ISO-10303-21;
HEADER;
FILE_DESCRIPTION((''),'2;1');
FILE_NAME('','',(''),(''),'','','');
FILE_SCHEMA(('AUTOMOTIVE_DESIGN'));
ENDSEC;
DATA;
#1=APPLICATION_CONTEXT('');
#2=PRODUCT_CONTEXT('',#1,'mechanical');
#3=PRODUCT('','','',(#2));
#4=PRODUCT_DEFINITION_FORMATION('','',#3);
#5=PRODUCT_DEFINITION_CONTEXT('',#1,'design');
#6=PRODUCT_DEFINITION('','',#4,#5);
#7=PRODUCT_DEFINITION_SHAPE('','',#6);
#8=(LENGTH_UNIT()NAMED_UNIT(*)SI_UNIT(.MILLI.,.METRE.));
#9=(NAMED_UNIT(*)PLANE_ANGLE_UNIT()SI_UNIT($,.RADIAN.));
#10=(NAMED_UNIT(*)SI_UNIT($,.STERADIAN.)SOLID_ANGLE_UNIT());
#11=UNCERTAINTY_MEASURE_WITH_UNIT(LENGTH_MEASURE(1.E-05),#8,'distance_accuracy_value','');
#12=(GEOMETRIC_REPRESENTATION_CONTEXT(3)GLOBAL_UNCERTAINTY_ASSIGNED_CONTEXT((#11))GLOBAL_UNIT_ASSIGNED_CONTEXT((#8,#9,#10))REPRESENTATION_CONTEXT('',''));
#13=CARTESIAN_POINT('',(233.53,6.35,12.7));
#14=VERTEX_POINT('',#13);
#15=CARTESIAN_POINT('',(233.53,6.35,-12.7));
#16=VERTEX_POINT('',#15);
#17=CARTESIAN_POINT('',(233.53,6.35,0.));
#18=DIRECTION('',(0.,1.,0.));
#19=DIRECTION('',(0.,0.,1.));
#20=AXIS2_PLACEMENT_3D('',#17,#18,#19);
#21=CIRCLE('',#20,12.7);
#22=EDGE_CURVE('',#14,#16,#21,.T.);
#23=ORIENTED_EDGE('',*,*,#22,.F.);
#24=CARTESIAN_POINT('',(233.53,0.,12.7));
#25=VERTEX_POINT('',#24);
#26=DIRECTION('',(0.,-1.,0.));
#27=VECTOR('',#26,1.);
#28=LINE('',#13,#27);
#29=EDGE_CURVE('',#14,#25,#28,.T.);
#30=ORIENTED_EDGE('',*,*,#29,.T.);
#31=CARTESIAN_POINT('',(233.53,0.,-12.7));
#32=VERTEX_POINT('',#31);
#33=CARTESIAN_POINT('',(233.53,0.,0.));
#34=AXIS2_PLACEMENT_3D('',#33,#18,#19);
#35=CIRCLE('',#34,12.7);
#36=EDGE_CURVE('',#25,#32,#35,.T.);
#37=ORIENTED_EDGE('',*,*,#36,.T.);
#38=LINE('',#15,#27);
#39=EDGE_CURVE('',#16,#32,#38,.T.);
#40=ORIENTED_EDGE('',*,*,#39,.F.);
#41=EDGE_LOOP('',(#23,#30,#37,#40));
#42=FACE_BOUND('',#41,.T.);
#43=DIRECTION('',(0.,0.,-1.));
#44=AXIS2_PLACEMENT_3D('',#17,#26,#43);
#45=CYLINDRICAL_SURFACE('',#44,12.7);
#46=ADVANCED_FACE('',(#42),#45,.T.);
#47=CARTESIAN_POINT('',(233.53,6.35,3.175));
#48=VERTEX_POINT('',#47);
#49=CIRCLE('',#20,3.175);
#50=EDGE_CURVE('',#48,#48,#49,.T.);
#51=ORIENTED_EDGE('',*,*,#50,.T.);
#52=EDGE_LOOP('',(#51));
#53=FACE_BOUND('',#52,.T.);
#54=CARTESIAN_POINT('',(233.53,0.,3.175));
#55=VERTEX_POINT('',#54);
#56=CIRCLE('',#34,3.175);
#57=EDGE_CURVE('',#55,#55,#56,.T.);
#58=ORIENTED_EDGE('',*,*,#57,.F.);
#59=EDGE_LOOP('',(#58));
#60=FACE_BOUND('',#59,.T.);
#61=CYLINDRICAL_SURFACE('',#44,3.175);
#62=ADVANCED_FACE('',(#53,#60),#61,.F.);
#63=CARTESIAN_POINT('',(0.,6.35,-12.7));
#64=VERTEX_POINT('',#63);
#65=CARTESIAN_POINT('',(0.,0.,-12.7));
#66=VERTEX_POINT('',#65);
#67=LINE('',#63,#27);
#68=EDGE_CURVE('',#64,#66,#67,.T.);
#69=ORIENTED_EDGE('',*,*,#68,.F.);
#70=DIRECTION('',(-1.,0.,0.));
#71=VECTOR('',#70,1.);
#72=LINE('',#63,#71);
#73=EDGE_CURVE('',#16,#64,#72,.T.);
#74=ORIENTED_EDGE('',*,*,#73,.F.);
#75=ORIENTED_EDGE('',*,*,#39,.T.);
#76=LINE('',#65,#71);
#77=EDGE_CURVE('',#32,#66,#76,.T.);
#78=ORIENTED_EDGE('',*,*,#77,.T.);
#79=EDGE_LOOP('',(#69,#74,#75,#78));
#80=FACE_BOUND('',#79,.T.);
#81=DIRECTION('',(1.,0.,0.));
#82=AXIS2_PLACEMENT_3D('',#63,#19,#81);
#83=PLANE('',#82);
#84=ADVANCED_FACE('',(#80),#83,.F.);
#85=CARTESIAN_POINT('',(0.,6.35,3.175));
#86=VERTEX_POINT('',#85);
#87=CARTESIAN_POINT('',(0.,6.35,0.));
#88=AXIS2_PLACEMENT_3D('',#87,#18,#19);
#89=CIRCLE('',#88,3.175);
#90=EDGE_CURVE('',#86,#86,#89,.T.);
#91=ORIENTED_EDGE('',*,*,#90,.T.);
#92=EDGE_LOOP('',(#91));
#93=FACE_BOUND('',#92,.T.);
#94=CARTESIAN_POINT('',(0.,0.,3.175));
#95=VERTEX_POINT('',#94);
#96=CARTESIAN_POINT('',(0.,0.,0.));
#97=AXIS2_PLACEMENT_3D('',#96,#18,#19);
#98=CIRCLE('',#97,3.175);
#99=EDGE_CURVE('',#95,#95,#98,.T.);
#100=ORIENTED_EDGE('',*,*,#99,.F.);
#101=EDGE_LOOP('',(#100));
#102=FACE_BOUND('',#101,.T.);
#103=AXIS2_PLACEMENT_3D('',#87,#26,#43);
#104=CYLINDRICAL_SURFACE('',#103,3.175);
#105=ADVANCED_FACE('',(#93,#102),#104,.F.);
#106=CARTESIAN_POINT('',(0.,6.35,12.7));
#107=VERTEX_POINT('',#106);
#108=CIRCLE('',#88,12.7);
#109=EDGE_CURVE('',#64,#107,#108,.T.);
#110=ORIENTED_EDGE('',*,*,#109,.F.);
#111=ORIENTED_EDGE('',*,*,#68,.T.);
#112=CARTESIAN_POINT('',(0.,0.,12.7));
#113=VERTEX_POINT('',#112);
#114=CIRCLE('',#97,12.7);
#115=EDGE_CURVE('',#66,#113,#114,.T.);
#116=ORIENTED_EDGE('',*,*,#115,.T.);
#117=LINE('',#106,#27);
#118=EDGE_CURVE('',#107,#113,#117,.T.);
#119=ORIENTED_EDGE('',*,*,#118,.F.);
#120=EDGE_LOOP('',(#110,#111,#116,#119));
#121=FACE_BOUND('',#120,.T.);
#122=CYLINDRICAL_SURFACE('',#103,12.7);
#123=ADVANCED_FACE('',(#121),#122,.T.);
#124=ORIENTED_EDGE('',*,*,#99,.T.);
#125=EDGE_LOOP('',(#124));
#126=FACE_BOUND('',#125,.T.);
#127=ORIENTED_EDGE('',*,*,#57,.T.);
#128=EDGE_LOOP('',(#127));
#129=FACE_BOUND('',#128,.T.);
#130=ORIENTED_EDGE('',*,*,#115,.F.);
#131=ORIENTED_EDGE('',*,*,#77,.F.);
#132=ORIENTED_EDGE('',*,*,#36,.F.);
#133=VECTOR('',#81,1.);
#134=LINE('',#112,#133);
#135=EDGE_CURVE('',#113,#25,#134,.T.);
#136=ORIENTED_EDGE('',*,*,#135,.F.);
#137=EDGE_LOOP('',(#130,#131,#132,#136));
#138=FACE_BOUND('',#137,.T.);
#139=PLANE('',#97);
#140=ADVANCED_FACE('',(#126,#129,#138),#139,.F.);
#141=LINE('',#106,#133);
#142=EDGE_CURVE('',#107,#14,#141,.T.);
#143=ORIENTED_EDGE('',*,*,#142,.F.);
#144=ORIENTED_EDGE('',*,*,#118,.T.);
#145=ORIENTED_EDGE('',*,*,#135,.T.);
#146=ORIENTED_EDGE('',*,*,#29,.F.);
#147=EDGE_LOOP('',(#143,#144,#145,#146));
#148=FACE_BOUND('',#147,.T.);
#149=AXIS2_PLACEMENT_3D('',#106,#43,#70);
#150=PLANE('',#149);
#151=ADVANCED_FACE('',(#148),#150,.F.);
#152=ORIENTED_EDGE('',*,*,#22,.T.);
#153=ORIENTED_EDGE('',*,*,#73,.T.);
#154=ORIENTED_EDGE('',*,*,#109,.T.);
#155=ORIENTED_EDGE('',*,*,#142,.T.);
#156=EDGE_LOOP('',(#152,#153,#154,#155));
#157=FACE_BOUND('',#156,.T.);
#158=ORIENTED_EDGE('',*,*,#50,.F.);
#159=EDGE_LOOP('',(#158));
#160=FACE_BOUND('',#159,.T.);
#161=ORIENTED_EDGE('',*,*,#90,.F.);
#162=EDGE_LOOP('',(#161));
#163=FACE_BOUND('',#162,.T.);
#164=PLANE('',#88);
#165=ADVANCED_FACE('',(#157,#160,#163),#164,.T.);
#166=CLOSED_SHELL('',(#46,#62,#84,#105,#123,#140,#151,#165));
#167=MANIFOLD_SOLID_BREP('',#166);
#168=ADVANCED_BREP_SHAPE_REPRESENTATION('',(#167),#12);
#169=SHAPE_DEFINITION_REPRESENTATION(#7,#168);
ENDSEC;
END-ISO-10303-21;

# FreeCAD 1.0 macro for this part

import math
import FreeCAD as App
import Part
import Sketcher

V = App.Vector
Q = App.Units.Quantity

doc = App.newDocument("Part")
body = doc.addObject("PartDesign::Body", "Body")

sketch1 = body.newObject("Sketcher::SketchObject", "Sketch")
sketch1.AttachmentSupport = (doc.getObject("XZ_Plane"), [""])
sketch1.MapMode = "FlatFace"
sketch1.addGeometry(Part.LineSegment(V(233.5, -12.7, 0), V(0, -12.7, 0)), False)
sketch1.addGeometry(Part.ArcOfCircle(Part.Circle(V(0, 0, 0), V(0, 0, 1), 12.7), math.radians(90), math.radians(270)), False)
sketch1.addGeometry(Part.LineSegment(V(0, 12.7, 0), V(233.5, 12.7, 0)), False)
sketch1.addGeometry(Part.ArcOfCircle(Part.Circle(V(233.5, 0, 0), V(0, 0, 1), 12.7), math.radians(-90), math.radians(90)), False)
sketch1.addGeometry(Part.Circle(V(233.5, 0, 0), V(0, 0, 1), 3.2), False)
sketch1.addGeometry(Part.Circle(V(0, 0, 0), V(0, 0, 1), 3.2), False)
sketch1.addConstraint(Sketcher.Constraint("Tangent", 0, 2, 1, 2))
sketch1.addConstraint(Sketcher.Constraint("Tangent", 1, 1, 2, 1))
sketch1.addConstraint(Sketcher.Constraint("Tangent", 2, 2, 3, 2))
sketch1.addConstraint(Sketcher.Constraint("Tangent", 3, 1, 0, 1))
sketch1.addConstraint(Sketcher.Constraint("Horizontal", 0))
sketch1.addConstraint(Sketcher.Constraint("Horizontal", 2))
sketch1.addConstraint(Sketcher.Constraint("Coincident", 1, 3, -1, 1))
sketch1.addConstraint(Sketcher.Constraint("Coincident", 5, 3, -1, 1))
sketch1.addConstraint(Sketcher.Constraint("Coincident", 4, 3, 3, 3))
sketch1.addConstraint(Sketcher.Constraint("Equal", 4, 5))
sketch1.addConstraint(Sketcher.Constraint("Radius", 1, Q("0.5 in")))
sketch1.addConstraint(Sketcher.Constraint("Diameter", 4, Q("0.25 in")))
sketch1.addConstraint(Sketcher.Constraint("DistanceX", 0, 2, 0, 1, Q("233.53 mm")))
pad1 = body.newObject("PartDesign::Pad", "Pad")
pad1.Profile = sketch1
pad1.Length = Q("0.25 in")
pad1.Reversed = True

doc.recompute()
